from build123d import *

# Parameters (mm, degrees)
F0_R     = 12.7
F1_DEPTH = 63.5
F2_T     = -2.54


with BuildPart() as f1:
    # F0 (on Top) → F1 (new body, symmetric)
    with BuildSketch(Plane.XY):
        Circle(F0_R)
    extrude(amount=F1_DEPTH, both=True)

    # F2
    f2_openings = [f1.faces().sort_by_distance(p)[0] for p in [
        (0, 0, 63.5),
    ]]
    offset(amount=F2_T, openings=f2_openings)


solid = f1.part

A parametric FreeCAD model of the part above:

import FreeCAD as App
import Part
import Sketcher

V = App.Vector
Q = App.Units.Quantity


def faces_at(feature, points):
    """Names of the faces that lie closest to the given points."""
    faces = feature.Shape.Faces
    near = lambda p: min(range(len(faces)), key=lambda i: faces[i].distToShape(Part.Vertex(*p))[0])
    return sorted({f"Face{near(p) + 1}" for p in points})

doc = App.newDocument("Part")
params = doc.addObject("Spreadsheet::Sheet", "Params")
for row, (alias, value) in enumerate([
    ("sketch1_diameter", "1 in"),
    ("pad1_length", "5 in"),
    ("thickness_wall", "0.1 in"),
], start=1):
    params.set(f"A{row}", alias)
    params.set(f"B{row}", "=" + value)
    params.setAlias(f"B{row}", alias)

body = doc.addObject("PartDesign::Body", "Body")

# Sketch on XY plane
sketch1 = body.newObject("Sketcher::SketchObject", "Sketch")
sketch1.AttachmentSupport = (doc.getObject("XY_Plane"), [""])
sketch1.MapMode = "FlatFace"
sketch1.addGeometry(Part.Circle(V(0, 0, 0), V(0, 0, 1), 13), False)
sketch1.addConstraint([
    Sketcher.Constraint("Coincident", 0, 3, -1, 1),
    Sketcher.Constraint("Diameter", 0, Q("1 in")),
])
sketch1.setExpression("Constraints[1]", "Params.sketch1_diameter")
pad1 = body.newObject("PartDesign::Pad", "Pad")
pad1.Profile = sketch1
pad1.setExpression("Length", "Params.pad1_length")
pad1.Midplane = True
doc.recompute()

thickness = body.newObject("PartDesign::Thickness", "Thickness")
thickness.Base = (pad1, faces_at(pad1, [(0, 0, 63.5)]))
thickness.setExpression("Value", "Params.thickness_wall")
thickness.Reversed = True
thickness.Join = "Arc"

doc.recompute()
